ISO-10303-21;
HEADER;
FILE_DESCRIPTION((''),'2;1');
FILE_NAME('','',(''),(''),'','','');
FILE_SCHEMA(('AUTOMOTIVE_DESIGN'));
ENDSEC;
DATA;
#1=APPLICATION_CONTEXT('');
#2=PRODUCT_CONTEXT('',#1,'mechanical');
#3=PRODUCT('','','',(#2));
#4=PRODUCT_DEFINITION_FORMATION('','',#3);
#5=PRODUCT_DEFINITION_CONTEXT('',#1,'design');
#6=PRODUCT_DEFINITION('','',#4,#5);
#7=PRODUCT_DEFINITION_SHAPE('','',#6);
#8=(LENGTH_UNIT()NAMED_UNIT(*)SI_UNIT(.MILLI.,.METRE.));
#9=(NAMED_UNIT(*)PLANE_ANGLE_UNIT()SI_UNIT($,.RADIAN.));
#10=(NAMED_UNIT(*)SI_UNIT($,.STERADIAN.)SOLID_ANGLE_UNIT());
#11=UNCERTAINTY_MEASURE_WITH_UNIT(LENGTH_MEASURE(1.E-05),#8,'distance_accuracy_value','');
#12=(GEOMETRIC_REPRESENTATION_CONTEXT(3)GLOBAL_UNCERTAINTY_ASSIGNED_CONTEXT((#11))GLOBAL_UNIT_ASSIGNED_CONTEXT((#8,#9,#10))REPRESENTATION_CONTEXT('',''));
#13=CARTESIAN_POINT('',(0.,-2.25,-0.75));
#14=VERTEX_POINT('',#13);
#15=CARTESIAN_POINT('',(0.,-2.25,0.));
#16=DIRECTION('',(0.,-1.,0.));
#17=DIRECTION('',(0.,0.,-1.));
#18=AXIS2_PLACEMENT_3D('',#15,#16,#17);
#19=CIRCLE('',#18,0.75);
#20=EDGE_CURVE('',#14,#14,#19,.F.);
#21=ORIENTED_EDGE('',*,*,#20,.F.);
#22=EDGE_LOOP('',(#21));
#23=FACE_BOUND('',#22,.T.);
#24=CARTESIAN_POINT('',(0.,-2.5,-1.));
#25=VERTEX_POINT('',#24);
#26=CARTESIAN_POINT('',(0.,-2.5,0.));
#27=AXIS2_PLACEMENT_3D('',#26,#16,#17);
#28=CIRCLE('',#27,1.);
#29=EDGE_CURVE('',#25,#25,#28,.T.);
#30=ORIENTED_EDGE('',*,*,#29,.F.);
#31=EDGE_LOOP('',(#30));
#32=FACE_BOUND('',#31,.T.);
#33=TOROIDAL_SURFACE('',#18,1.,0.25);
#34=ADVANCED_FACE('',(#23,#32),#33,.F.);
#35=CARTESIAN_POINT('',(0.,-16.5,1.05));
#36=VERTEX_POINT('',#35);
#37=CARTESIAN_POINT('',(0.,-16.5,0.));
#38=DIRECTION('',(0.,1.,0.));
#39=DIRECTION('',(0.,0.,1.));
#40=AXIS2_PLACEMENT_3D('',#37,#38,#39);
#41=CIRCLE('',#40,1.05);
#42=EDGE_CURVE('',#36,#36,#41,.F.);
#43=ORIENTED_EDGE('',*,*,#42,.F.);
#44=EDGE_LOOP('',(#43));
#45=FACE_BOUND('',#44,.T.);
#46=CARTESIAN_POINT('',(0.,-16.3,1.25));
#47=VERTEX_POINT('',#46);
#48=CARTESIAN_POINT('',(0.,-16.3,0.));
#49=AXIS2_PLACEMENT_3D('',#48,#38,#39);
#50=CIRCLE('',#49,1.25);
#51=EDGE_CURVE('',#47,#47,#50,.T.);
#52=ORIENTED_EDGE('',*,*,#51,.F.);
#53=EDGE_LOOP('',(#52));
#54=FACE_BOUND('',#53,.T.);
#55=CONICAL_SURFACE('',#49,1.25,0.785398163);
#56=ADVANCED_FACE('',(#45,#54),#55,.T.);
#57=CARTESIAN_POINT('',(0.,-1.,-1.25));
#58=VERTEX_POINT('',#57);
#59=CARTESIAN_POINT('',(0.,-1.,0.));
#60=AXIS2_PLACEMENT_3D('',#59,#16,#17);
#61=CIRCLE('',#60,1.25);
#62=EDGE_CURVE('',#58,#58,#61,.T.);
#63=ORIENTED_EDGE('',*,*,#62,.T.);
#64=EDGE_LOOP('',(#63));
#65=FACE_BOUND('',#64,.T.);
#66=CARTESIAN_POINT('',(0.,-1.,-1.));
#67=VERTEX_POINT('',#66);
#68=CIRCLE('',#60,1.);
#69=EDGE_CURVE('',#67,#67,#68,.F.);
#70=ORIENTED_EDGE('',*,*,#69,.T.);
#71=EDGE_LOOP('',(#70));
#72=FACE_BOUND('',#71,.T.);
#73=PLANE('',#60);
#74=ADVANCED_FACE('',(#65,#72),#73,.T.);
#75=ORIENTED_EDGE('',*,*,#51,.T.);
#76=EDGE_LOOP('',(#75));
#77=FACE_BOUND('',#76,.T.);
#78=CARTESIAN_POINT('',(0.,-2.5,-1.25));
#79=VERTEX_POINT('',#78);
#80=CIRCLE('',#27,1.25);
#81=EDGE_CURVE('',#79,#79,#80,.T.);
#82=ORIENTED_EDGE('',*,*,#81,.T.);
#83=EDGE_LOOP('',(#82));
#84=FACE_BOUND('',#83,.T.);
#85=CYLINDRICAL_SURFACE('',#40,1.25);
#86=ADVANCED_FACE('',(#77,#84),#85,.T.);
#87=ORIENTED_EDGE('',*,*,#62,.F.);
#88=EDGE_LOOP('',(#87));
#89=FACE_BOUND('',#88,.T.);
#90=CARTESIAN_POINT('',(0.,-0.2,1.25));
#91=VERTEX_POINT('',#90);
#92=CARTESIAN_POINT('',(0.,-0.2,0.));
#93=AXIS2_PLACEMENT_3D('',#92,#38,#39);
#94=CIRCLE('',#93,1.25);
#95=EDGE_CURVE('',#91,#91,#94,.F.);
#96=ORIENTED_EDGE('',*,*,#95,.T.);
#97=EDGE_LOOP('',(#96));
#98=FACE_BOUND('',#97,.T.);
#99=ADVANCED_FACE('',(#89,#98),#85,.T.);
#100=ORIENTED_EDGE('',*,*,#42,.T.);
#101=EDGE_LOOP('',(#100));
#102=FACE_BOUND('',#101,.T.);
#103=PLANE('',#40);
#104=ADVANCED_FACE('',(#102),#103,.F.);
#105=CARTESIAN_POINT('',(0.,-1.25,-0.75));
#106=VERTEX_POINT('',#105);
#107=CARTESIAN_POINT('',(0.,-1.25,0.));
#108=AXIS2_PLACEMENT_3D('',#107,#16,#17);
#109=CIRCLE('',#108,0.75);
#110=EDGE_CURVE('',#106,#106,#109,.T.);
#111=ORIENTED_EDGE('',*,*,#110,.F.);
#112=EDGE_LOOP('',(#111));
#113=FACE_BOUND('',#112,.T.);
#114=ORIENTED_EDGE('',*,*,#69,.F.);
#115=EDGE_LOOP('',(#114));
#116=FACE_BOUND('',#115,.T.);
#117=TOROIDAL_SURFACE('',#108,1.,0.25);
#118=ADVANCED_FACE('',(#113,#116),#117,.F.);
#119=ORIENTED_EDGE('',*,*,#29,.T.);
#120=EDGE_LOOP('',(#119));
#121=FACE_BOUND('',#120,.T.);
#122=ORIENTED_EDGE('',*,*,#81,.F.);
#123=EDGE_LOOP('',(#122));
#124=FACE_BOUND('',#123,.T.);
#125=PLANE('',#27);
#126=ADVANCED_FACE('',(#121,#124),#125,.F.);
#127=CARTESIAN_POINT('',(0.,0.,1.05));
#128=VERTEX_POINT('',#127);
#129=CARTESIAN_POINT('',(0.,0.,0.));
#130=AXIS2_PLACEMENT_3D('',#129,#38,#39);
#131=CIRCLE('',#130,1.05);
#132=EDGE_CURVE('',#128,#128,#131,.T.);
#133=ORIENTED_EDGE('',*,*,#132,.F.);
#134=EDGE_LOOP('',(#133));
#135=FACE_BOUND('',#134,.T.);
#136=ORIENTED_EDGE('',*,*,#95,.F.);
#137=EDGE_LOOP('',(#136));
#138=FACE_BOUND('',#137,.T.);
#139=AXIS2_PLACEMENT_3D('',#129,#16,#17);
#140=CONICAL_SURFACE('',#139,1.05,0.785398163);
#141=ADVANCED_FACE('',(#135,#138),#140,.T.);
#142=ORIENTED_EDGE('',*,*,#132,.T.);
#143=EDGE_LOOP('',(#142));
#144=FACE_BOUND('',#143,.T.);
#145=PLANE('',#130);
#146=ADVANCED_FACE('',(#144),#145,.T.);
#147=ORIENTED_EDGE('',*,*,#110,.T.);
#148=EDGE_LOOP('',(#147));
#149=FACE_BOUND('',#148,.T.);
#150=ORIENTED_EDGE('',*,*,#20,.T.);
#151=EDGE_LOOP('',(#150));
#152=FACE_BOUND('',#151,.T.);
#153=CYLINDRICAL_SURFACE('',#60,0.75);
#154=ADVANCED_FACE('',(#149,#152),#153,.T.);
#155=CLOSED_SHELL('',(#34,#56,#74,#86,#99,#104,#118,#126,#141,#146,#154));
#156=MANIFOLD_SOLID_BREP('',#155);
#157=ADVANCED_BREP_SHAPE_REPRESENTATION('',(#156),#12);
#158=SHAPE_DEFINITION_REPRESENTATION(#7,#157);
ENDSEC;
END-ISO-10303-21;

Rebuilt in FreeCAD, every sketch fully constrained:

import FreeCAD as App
import Part
import Sketcher
from FreeCAD import Vector


def edges_at(feature, points):
    """Names of the edges that pass closest to the given points."""
    edges = feature.Shape.Edges
    near = lambda p: min(range(len(edges)), key=lambda i: edges[i].distToShape(Part.Vertex(*p))[0])
    return sorted({f"Edge{near(p) + 1}" for p in points})

doc = App.newDocument("Part")
params = doc.addObject("Spreadsheet::Sheet", "Params")
for row, (alias, value) in enumerate([
    ("sketch1_diameter", "2.5 mm"),
    ("pad1_length", "16.5 mm"),
    ("chamfer_size", "0.2 mm"),
    ("sketch2_diameter", "2.5 mm"),
    ("sketch2_diameter2", "1.5 mm"),
    ("pocket1_length", "1.5 mm"),
    ("fillet_radius", "0.25 mm"),
], start=1):
    params.set(f"A{row}", alias)
    params.set(f"B{row}", "=" + value)
    params.setAlias(f"B{row}", alias)

body = doc.addObject("PartDesign::Body", "Body")

# Sketch on XZ plane
sketch1 = body.newObject("Sketcher::SketchObject", "Sketch")
sketch1.AttachmentSupport = (doc.getObject("XZ_Plane"), [""])
sketch1.MapMode = "FlatFace"
sketch1.addGeometry(Part.Circle(Vector(0, 0, 0), Vector(0, 0, 1), 1.25), False)
sketch1.addConstraint([
    Sketcher.Constraint("Coincident", 0, 3, -1, 1),
    Sketcher.Constraint("Diameter", 0, 2.5),
])
sketch1.setExpression("Constraints[1]", "Params.sketch1_diameter")
pad1 = body.newObject("PartDesign::Pad", "Pad")
pad1.Profile = sketch1
pad1.setExpression("Length", "Params.pad1_length")
doc.recompute()

chamfer = body.newObject("PartDesign::Chamfer", "Chamfer")
chamfer.Base = (pad1, edges_at(pad1, [(0, 0, -1.25), (0, -16.5, -1.25)]))
chamfer.setExpression("Size", "Params.chamfer_size")

# Sketch on XZ plane
sketch2 = body.newObject("Sketcher::SketchObject", "Sketch001")
sketch2.AttachmentSupport = (doc.getObject("XZ_Plane"), [""])
sketch2.MapMode = "FlatFace"
sketch2.AttachmentOffset = App.Placement(Vector(0, 0, 2.5), App.Rotation())
sketch2.addGeometry([
    Part.Circle(Vector(0, 0, 0), Vector(0, 0, 1), 1.25),
    Part.Circle(Vector(0, 0, 0), Vector(0, 0, 1), 0.75),
], False)
sketch2.addConstraint([
    Sketcher.Constraint("Coincident", 0, 3, -1, 1),
    Sketcher.Constraint("Coincident", 1, 3, -1, 1),
    Sketcher.Constraint("Diameter", 0, 2.5),
    Sketcher.Constraint("Diameter", 1, 1.5),
])
sketch2.setExpression("Constraints[2]", "Params.sketch2_diameter")
sketch2.setExpression("Constraints[3]", "Params.sketch2_diameter2")
pocket1 = body.newObject("PartDesign::Pocket", "Pocket")
pocket1.Profile = sketch2
pocket1.setExpression("Length", "Params.pocket1_length")
doc.recompute()

fillet = body.newObject("PartDesign::Fillet", "Fillet")
fillet.Base = (pocket1, edges_at(pocket1, [(0, -1, 0.75), (0, -2.5, 0.75)]))
fillet.setExpression("Radius", "Params.fillet_radius")

doc.recompute()
